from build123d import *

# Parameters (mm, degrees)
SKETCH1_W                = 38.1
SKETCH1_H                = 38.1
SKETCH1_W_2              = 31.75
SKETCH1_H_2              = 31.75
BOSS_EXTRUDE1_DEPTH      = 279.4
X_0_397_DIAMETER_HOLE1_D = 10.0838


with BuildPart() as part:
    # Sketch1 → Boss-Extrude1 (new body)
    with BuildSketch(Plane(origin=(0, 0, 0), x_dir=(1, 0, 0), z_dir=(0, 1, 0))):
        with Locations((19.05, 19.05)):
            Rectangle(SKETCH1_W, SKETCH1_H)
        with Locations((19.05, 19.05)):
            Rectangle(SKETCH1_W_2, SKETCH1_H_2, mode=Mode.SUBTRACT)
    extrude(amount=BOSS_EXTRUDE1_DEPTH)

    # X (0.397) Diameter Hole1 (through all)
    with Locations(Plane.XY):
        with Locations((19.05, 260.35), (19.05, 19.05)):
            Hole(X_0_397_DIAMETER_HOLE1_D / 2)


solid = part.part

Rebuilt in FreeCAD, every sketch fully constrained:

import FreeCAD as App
import Part
import Sketcher
Q = App.Units.Quantity

doc = App.newDocument("Part")
body = doc.addObject("PartDesign::Body", "Body")

# Sketch on XZ plane
sketch1 = body.newObject("Sketcher::SketchObject", "Sketch")
sketch1.AttachmentSupport = (doc.getObject("XZ_Plane"), [""])
sketch1.MapMode = "FlatFace"
sketch1.addGeometry([
    Part.LineSegment(App.Vector(0, -38, 0), App.Vector(0, 0, 0)),  # 0
    Part.LineSegment(App.Vector(0, 0, 0), App.Vector(38, 0, 0)),  # 1
    Part.LineSegment(App.Vector(38, 0, 0), App.Vector(38, -38, 0)),  # 2
    Part.LineSegment(App.Vector(38, -38, 0), App.Vector(0, -38, 0)),  # 3
    Part.LineSegment(App.Vector(35, -3, 0), App.Vector(3, -3, 0)),  # 4
    Part.LineSegment(App.Vector(3, -3, 0), App.Vector(3, -35, 0)),  # 5
    Part.LineSegment(App.Vector(3, -35, 0), App.Vector(35, -35, 0)),  # 6
    Part.LineSegment(App.Vector(35, -35, 0), App.Vector(35, -3, 0)),  # 7
], False)
sketch1.addConstraint([
    Sketcher.Constraint("Coincident", 0, 2, 1, 1),
    Sketcher.Constraint("Coincident", 1, 2, 2, 1),
    Sketcher.Constraint("Coincident", 2, 2, 3, 1),
    Sketcher.Constraint("Coincident", 3, 2, 0, 1),
    Sketcher.Constraint("Coincident", 4, 2, 5, 1),
    Sketcher.Constraint("Coincident", 5, 2, 6, 1),
    Sketcher.Constraint("Coincident", 6, 2, 7, 1),
    Sketcher.Constraint("Coincident", 7, 2, 4, 1),
    Sketcher.Constraint("Vertical", 0),
    Sketcher.Constraint("Horizontal", 1),
    Sketcher.Constraint("Vertical", 2),
    Sketcher.Constraint("Horizontal", 3),
    Sketcher.Constraint("Horizontal", 4),
    Sketcher.Constraint("Vertical", 5),
    Sketcher.Constraint("Horizontal", 6),
    Sketcher.Constraint("Vertical", 7),
    Sketcher.Constraint("Coincident", 0, 2, -1, 1),
    Sketcher.Constraint("Equal", 3, 0),
    Sketcher.Constraint("Equal", 6, 5),
    Sketcher.Constraint("DistanceX", 1, 1, 1, 2, Q("1.5 in")),
    Sketcher.Constraint("DistanceX", 4, 2, 4, 1, Q("1.25 in")),
    Sketcher.Constraint("DistanceX", -1, 1, 4, 2, Q("0.125 in")),
    Sketcher.Constraint("DistanceY", 4, 2, -1, 1, Q("0.125 in")),
])
pad1 = body.newObject("PartDesign::Pad", "Pad")
pad1.Profile = sketch1
pad1.Length = Q("11 in")
pad1.Reversed = True

# Sketch on XY plane
sketch2 = body.newObject("Sketcher::SketchObject", "Sketch001")
sketch2.AttachmentSupport = (doc.getObject("XY_Plane"), [""])
sketch2.MapMode = "FlatFace"
sketch2.addGeometry([
    Part.Circle(App.Vector(19, 260, 0), App.Vector(0, 0, 1), 5),
    Part.Circle(App.Vector(19, 19, 0), App.Vector(0, 0, 1), 5),
], False)
sketch2.addConstraint([
    Sketcher.Constraint("Equal", 0, 1),
    Sketcher.Constraint("Vertical", 0, 3, 1, 3),
    Sketcher.Constraint("Diameter", 0, Q("0.397 in")),
    Sketcher.Constraint("DistanceY", 1, 3, 0, 3, Q("9.5 in")),
    Sketcher.Constraint("DistanceX", -1, 1, 0, 3, Q("0.75 in")),
    Sketcher.Constraint("DistanceY", -1, 1, 0, 3, Q("10.25 in")),
])
doc.recompute()
hole = body.newObject("PartDesign::Hole", "Hole")
hole.Profile = sketch2
hole.ThreadType = "None"
hole.Diameter = Q("0.397 in")
hole.DepthType = "ThroughAll"

doc.recompute()
